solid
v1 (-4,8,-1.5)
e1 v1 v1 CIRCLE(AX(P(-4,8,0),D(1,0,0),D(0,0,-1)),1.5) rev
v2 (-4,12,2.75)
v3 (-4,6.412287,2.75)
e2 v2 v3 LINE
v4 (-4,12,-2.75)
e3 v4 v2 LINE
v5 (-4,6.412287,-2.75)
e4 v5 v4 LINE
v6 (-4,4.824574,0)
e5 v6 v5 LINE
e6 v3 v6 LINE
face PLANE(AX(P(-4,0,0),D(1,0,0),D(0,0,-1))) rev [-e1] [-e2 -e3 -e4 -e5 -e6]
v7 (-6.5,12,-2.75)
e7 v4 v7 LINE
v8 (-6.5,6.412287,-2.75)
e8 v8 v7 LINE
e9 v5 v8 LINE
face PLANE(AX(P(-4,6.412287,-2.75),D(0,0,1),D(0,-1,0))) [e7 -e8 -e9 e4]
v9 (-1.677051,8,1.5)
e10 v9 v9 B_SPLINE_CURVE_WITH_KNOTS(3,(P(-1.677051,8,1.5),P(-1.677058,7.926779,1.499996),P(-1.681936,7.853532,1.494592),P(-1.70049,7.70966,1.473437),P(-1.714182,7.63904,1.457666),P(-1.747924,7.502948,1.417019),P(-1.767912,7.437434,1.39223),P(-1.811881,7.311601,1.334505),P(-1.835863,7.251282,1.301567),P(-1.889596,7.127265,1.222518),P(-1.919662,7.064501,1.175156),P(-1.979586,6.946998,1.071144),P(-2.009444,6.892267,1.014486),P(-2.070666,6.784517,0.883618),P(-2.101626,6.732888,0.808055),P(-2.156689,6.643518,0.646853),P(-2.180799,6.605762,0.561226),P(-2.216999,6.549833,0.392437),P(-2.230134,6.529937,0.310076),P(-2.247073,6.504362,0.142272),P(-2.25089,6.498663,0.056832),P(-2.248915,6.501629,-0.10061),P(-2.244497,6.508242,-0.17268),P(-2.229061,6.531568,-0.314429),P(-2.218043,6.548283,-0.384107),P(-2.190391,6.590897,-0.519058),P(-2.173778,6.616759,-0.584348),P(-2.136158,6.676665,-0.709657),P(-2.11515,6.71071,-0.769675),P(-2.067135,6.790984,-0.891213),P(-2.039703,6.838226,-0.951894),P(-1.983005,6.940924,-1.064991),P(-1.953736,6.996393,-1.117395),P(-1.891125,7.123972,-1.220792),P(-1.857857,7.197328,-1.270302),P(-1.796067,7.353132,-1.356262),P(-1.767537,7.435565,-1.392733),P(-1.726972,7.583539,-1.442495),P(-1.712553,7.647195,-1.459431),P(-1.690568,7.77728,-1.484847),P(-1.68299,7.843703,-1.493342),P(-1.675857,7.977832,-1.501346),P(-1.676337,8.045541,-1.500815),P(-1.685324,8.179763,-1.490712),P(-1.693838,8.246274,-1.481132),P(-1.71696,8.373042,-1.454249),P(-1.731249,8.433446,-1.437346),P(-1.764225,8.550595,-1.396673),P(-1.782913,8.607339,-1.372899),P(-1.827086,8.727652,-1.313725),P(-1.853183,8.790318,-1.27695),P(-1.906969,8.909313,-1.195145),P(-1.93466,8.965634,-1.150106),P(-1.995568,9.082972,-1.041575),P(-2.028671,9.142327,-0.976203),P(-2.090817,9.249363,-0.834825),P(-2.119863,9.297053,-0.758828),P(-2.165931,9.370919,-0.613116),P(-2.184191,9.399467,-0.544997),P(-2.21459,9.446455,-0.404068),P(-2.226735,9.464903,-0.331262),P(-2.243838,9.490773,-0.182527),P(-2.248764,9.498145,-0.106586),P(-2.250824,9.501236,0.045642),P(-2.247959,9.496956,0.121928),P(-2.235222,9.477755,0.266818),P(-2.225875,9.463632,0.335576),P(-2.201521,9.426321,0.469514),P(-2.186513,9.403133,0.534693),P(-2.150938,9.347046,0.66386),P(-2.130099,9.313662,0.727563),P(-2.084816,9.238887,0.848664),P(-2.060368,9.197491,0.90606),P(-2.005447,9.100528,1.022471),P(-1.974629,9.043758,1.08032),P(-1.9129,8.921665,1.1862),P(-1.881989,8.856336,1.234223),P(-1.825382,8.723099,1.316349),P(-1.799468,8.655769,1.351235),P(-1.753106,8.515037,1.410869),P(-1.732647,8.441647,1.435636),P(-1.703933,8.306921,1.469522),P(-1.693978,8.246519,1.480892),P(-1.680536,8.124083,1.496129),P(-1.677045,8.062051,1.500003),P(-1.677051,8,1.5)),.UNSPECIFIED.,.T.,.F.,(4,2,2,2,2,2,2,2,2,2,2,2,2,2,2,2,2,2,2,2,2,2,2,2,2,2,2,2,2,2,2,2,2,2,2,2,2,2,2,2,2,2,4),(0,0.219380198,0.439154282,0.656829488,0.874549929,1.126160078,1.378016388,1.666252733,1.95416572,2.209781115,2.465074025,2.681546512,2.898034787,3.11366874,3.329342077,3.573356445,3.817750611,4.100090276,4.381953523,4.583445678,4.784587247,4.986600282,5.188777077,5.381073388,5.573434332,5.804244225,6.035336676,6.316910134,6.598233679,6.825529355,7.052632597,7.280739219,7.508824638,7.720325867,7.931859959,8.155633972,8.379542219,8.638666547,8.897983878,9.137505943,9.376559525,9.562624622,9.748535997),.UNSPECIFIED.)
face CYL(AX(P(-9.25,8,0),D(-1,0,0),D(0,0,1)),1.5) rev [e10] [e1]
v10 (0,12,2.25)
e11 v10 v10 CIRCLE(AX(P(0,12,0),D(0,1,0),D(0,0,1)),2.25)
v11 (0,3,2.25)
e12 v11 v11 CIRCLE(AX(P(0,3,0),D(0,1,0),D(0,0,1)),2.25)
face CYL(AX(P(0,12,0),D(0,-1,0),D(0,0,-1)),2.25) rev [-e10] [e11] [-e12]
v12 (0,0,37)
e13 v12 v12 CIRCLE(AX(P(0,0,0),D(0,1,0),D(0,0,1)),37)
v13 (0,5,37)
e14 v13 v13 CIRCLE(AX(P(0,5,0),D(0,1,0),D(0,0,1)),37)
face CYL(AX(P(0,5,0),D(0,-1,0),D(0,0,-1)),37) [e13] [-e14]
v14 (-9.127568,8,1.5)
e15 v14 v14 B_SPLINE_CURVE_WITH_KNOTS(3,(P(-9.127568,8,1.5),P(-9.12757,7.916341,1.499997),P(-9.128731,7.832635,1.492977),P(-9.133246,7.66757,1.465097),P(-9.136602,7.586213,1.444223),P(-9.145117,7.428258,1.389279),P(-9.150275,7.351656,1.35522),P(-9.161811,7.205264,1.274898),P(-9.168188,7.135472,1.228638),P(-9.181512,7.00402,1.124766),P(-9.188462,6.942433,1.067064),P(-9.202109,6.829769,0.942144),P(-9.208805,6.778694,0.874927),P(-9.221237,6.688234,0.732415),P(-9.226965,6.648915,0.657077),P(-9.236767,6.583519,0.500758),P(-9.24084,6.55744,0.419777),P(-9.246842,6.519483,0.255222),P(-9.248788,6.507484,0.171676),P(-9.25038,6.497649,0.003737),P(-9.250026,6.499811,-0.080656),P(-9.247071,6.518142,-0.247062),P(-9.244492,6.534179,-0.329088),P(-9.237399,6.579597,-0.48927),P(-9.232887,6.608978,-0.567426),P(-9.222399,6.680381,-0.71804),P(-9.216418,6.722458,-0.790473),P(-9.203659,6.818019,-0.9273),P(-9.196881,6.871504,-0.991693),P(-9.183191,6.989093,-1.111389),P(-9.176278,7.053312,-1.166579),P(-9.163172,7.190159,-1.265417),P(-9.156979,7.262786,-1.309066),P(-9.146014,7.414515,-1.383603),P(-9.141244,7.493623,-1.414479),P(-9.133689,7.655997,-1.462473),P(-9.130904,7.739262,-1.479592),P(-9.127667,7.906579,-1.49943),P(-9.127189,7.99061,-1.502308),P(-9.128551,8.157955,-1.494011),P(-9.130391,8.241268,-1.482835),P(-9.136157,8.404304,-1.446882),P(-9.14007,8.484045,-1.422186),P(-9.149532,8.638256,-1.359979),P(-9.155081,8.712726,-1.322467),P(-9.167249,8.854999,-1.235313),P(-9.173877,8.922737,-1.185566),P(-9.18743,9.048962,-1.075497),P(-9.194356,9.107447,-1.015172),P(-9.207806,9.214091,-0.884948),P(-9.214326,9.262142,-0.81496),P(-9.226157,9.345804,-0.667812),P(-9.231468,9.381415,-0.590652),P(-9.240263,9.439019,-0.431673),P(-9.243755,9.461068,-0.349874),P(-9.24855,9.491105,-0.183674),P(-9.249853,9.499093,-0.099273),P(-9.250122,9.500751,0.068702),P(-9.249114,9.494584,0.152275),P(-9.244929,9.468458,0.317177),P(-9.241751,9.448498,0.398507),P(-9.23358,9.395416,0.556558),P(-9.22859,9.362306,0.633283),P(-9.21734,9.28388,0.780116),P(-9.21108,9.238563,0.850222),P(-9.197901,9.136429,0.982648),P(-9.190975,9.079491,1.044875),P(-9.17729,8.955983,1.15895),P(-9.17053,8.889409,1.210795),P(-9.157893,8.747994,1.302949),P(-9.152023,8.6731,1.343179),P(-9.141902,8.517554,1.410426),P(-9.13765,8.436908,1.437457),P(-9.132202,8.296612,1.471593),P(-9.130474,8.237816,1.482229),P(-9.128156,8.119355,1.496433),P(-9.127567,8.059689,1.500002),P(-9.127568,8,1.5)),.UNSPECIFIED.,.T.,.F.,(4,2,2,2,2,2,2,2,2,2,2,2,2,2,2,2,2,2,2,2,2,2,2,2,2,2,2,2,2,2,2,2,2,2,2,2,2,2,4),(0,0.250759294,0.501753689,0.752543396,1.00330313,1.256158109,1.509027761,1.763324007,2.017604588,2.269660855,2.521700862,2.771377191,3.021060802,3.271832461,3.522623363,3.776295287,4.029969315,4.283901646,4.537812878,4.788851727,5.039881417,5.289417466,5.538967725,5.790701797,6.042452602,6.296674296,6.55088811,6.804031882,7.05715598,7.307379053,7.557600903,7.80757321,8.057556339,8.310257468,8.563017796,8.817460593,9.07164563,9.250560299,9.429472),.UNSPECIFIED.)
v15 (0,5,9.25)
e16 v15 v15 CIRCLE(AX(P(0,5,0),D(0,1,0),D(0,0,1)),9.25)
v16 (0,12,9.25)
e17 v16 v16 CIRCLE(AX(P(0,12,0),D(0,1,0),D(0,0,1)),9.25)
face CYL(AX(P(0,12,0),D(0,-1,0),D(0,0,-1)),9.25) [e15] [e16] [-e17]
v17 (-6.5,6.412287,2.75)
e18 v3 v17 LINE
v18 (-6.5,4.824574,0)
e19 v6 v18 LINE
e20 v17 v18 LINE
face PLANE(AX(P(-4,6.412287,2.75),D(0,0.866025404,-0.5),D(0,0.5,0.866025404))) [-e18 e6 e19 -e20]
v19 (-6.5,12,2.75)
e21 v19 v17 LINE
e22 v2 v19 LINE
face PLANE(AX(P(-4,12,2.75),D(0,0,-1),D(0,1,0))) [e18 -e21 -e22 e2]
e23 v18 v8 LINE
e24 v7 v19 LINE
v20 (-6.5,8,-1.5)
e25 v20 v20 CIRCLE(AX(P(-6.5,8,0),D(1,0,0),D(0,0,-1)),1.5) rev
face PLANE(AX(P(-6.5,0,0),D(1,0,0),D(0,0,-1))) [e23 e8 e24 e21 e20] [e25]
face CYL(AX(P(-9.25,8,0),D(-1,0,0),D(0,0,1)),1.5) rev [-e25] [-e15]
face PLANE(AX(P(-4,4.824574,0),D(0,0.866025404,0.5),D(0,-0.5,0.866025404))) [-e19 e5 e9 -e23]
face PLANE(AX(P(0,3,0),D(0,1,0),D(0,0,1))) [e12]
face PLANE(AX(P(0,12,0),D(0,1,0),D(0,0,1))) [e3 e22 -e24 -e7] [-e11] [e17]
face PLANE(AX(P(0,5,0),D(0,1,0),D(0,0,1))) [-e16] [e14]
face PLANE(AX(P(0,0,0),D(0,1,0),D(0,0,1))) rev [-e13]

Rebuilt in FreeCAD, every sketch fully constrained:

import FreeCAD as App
import Part
import Sketcher
Q = App.Units.Quantity

doc = App.newDocument("Part")
body = doc.addObject("PartDesign::Body", "Body")

sketch1 = doc.addObject("Sketcher::SketchObject", "Sketch")
body.addObject(sketch1)
sketch1.AttachmentSupport = (doc.XZ_Plane, [""])
sketch1.MapMode = "FlatFace"
sketch1.addGeometry(Part.Circle(App.Vector(0, 0, 0), App.Vector(0, 0, 1), 37), False)
sketch1.addConstraint(Sketcher.Constraint("Coincident", 0, 3, -1, 1))
sketch1.addConstraint(Sketcher.Constraint("Diameter", 0, 74.0))
pad1 = doc.addObject("PartDesign::Pad", "Pad")
body.addObject(pad1)
pad1.Profile = sketch1
pad1.Length = 5
pad1.Reversed = True

sketch2 = doc.addObject("Sketcher::SketchObject", "Sketch001")
body.addObject(sketch2)
sketch2.AttachmentSupport = (doc.XZ_Plane, [""])
sketch2.MapMode = "FlatFace"
sketch2.AttachmentOffset = App.Placement(App.Vector(0, 0, -5), App.Rotation())
sketch2.addGeometry(Part.Circle(App.Vector(0, 0, 0), App.Vector(0, 0, 1), 9.2), False)
sketch2.addGeometry(Part.Circle(App.Vector(0, 0, 0), App.Vector(0, 0, 1), 2.2), False)
sketch2.addConstraint(Sketcher.Constraint("Coincident", 0, 3, -1, 1))
sketch2.addConstraint(Sketcher.Constraint("Coincident", 1, 3, -1, 1))
sketch2.addConstraint(Sketcher.Constraint("Diameter", 0, 18.5))
sketch2.addConstraint(Sketcher.Constraint("Diameter", 1, 4.5))
pad2 = doc.addObject("PartDesign::Pad", "Pad001")
body.addObject(pad2)
pad2.Profile = sketch2
pad2.Length = 7
pad2.Reversed = True

sketch3 = doc.addObject("Sketcher::SketchObject", "Sketch002")
body.addObject(sketch3)
sketch3.AttachmentSupport = (doc.YZ_Plane, [""])
sketch3.MapMode = "FlatFace"
sketch3.AttachmentOffset = App.Placement(App.Vector(0, 0, -9.25), App.Rotation())
sketch3.addGeometry(Part.Circle(App.Vector(8, 0, 0), App.Vector(0, 0, 1), 1.5), False)
sketch3.addConstraint(Sketcher.Constraint("PointOnObject", 0, 3, -1))
sketch3.addConstraint(Sketcher.Constraint("Diameter", 0, 3.0))
sketch3.addConstraint(Sketcher.Constraint("DistanceX", -1, 1, 0, 3, 8.0))
doc.recompute()
hole = doc.addObject("PartDesign::Hole", "Hole")
body.addObject(hole)
hole.Profile = sketch3
hole.ThreadType = "None"
hole.Diameter = 3
hole.DepthType = "Dimension"
hole.Depth = 8
hole.DrillPoint = "Flat"
hole.Reversed = True

sketch4 = doc.addObject("Sketcher::SketchObject", "Sketch003")
body.addObject(sketch4)
sketch4.AttachmentSupport = (doc.XZ_Plane, [""])
sketch4.MapMode = "FlatFace"
sketch4.AttachmentOffset = App.Placement(App.Vector(0, 0, -3), App.Rotation())
sketch4.addGeometry(Part.Circle(App.Vector(0, 0, 0), App.Vector(0, 0, 1), 2.2), False)
sketch4.addConstraint(Sketcher.Constraint("Coincident", 0, 3, -1, 1))
sketch4.addConstraint(Sketcher.Constraint("Diameter", 0, 4.5))
pocket1 = doc.addObject("PartDesign::Pocket", "Pocket")
body.addObject(pocket1)
pocket1.Profile = sketch4
pocket1.Length = 2

sketch5 = doc.addObject("Sketcher::SketchObject", "Sketch004")
body.addObject(sketch5)
sketch5.AttachmentSupport = (doc.YZ_Plane, [""])
sketch5.MapMode = "FlatFace"
sketch5.AttachmentOffset = App.Placement(App.Vector(0, 0, -6.5), App.Rotation())
sketch5.addGeometry(Part.LineSegment(App.Vector(12, 2.8, 0), App.Vector(6.4, 2.8, 0)), False)
sketch5.addGeometry(Part.LineSegment(App.Vector(6.4, 2.8, 0), App.Vector(4.8, 0, 0)), False)
sketch5.addGeometry(Part.LineSegment(App.Vector(4.8, 0, 0), App.Vector(6.4, -2.8, 0)), False)
sketch5.addGeometry(Part.LineSegment(App.Vector(6.4, -2.8, 0), App.Vector(12, -2.8, 0)), False)
sketch5.addGeometry(Part.LineSegment(App.Vector(12, -2.8, 0), App.Vector(12, 2.8, 0)), False)
sketch5.addConstraint(Sketcher.Constraint("Coincident", 0, 2, 1, 1))
sketch5.addConstraint(Sketcher.Constraint("Coincident", 1, 2, 2, 1))
sketch5.addConstraint(Sketcher.Constraint("Coincident", 2, 2, 3, 1))
sketch5.addConstraint(Sketcher.Constraint("Coincident", 3, 2, 4, 1))
sketch5.addConstraint(Sketcher.Constraint("Coincident", 4, 2, 0, 1))
sketch5.addConstraint(Sketcher.Constraint("Horizontal", 0))
sketch5.addConstraint(Sketcher.Constraint("Horizontal", 3))
sketch5.addConstraint(Sketcher.Constraint("Vertical", 4))
sketch5.addConstraint(Sketcher.Constraint("Symmetric", 0, 2, 2, 2, -1))
sketch5.addConstraint(Sketcher.Constraint("PointOnObject", 1, 2, -1))
sketch5.addConstraint(Sketcher.Constraint("Angle", 1, Q("-120 deg")))
sketch5.addConstraint(Sketcher.Constraint("DistanceY", 4, 1, 4, 2, 5.5))
sketch5.addConstraint(Sketcher.Constraint("DistanceX", -1, 1, 3, 2, 12.0))
sketch5.addConstraint(Sketcher.Constraint("DistanceX", 0, 2, 0, 1, 5.587713))
pocket2 = doc.addObject("PartDesign::Pocket", "Pocket001")
body.addObject(pocket2)
pocket2.Profile = sketch5
pocket2.Length = 2.5
pocket2.Reversed = True

doc.recompute()
